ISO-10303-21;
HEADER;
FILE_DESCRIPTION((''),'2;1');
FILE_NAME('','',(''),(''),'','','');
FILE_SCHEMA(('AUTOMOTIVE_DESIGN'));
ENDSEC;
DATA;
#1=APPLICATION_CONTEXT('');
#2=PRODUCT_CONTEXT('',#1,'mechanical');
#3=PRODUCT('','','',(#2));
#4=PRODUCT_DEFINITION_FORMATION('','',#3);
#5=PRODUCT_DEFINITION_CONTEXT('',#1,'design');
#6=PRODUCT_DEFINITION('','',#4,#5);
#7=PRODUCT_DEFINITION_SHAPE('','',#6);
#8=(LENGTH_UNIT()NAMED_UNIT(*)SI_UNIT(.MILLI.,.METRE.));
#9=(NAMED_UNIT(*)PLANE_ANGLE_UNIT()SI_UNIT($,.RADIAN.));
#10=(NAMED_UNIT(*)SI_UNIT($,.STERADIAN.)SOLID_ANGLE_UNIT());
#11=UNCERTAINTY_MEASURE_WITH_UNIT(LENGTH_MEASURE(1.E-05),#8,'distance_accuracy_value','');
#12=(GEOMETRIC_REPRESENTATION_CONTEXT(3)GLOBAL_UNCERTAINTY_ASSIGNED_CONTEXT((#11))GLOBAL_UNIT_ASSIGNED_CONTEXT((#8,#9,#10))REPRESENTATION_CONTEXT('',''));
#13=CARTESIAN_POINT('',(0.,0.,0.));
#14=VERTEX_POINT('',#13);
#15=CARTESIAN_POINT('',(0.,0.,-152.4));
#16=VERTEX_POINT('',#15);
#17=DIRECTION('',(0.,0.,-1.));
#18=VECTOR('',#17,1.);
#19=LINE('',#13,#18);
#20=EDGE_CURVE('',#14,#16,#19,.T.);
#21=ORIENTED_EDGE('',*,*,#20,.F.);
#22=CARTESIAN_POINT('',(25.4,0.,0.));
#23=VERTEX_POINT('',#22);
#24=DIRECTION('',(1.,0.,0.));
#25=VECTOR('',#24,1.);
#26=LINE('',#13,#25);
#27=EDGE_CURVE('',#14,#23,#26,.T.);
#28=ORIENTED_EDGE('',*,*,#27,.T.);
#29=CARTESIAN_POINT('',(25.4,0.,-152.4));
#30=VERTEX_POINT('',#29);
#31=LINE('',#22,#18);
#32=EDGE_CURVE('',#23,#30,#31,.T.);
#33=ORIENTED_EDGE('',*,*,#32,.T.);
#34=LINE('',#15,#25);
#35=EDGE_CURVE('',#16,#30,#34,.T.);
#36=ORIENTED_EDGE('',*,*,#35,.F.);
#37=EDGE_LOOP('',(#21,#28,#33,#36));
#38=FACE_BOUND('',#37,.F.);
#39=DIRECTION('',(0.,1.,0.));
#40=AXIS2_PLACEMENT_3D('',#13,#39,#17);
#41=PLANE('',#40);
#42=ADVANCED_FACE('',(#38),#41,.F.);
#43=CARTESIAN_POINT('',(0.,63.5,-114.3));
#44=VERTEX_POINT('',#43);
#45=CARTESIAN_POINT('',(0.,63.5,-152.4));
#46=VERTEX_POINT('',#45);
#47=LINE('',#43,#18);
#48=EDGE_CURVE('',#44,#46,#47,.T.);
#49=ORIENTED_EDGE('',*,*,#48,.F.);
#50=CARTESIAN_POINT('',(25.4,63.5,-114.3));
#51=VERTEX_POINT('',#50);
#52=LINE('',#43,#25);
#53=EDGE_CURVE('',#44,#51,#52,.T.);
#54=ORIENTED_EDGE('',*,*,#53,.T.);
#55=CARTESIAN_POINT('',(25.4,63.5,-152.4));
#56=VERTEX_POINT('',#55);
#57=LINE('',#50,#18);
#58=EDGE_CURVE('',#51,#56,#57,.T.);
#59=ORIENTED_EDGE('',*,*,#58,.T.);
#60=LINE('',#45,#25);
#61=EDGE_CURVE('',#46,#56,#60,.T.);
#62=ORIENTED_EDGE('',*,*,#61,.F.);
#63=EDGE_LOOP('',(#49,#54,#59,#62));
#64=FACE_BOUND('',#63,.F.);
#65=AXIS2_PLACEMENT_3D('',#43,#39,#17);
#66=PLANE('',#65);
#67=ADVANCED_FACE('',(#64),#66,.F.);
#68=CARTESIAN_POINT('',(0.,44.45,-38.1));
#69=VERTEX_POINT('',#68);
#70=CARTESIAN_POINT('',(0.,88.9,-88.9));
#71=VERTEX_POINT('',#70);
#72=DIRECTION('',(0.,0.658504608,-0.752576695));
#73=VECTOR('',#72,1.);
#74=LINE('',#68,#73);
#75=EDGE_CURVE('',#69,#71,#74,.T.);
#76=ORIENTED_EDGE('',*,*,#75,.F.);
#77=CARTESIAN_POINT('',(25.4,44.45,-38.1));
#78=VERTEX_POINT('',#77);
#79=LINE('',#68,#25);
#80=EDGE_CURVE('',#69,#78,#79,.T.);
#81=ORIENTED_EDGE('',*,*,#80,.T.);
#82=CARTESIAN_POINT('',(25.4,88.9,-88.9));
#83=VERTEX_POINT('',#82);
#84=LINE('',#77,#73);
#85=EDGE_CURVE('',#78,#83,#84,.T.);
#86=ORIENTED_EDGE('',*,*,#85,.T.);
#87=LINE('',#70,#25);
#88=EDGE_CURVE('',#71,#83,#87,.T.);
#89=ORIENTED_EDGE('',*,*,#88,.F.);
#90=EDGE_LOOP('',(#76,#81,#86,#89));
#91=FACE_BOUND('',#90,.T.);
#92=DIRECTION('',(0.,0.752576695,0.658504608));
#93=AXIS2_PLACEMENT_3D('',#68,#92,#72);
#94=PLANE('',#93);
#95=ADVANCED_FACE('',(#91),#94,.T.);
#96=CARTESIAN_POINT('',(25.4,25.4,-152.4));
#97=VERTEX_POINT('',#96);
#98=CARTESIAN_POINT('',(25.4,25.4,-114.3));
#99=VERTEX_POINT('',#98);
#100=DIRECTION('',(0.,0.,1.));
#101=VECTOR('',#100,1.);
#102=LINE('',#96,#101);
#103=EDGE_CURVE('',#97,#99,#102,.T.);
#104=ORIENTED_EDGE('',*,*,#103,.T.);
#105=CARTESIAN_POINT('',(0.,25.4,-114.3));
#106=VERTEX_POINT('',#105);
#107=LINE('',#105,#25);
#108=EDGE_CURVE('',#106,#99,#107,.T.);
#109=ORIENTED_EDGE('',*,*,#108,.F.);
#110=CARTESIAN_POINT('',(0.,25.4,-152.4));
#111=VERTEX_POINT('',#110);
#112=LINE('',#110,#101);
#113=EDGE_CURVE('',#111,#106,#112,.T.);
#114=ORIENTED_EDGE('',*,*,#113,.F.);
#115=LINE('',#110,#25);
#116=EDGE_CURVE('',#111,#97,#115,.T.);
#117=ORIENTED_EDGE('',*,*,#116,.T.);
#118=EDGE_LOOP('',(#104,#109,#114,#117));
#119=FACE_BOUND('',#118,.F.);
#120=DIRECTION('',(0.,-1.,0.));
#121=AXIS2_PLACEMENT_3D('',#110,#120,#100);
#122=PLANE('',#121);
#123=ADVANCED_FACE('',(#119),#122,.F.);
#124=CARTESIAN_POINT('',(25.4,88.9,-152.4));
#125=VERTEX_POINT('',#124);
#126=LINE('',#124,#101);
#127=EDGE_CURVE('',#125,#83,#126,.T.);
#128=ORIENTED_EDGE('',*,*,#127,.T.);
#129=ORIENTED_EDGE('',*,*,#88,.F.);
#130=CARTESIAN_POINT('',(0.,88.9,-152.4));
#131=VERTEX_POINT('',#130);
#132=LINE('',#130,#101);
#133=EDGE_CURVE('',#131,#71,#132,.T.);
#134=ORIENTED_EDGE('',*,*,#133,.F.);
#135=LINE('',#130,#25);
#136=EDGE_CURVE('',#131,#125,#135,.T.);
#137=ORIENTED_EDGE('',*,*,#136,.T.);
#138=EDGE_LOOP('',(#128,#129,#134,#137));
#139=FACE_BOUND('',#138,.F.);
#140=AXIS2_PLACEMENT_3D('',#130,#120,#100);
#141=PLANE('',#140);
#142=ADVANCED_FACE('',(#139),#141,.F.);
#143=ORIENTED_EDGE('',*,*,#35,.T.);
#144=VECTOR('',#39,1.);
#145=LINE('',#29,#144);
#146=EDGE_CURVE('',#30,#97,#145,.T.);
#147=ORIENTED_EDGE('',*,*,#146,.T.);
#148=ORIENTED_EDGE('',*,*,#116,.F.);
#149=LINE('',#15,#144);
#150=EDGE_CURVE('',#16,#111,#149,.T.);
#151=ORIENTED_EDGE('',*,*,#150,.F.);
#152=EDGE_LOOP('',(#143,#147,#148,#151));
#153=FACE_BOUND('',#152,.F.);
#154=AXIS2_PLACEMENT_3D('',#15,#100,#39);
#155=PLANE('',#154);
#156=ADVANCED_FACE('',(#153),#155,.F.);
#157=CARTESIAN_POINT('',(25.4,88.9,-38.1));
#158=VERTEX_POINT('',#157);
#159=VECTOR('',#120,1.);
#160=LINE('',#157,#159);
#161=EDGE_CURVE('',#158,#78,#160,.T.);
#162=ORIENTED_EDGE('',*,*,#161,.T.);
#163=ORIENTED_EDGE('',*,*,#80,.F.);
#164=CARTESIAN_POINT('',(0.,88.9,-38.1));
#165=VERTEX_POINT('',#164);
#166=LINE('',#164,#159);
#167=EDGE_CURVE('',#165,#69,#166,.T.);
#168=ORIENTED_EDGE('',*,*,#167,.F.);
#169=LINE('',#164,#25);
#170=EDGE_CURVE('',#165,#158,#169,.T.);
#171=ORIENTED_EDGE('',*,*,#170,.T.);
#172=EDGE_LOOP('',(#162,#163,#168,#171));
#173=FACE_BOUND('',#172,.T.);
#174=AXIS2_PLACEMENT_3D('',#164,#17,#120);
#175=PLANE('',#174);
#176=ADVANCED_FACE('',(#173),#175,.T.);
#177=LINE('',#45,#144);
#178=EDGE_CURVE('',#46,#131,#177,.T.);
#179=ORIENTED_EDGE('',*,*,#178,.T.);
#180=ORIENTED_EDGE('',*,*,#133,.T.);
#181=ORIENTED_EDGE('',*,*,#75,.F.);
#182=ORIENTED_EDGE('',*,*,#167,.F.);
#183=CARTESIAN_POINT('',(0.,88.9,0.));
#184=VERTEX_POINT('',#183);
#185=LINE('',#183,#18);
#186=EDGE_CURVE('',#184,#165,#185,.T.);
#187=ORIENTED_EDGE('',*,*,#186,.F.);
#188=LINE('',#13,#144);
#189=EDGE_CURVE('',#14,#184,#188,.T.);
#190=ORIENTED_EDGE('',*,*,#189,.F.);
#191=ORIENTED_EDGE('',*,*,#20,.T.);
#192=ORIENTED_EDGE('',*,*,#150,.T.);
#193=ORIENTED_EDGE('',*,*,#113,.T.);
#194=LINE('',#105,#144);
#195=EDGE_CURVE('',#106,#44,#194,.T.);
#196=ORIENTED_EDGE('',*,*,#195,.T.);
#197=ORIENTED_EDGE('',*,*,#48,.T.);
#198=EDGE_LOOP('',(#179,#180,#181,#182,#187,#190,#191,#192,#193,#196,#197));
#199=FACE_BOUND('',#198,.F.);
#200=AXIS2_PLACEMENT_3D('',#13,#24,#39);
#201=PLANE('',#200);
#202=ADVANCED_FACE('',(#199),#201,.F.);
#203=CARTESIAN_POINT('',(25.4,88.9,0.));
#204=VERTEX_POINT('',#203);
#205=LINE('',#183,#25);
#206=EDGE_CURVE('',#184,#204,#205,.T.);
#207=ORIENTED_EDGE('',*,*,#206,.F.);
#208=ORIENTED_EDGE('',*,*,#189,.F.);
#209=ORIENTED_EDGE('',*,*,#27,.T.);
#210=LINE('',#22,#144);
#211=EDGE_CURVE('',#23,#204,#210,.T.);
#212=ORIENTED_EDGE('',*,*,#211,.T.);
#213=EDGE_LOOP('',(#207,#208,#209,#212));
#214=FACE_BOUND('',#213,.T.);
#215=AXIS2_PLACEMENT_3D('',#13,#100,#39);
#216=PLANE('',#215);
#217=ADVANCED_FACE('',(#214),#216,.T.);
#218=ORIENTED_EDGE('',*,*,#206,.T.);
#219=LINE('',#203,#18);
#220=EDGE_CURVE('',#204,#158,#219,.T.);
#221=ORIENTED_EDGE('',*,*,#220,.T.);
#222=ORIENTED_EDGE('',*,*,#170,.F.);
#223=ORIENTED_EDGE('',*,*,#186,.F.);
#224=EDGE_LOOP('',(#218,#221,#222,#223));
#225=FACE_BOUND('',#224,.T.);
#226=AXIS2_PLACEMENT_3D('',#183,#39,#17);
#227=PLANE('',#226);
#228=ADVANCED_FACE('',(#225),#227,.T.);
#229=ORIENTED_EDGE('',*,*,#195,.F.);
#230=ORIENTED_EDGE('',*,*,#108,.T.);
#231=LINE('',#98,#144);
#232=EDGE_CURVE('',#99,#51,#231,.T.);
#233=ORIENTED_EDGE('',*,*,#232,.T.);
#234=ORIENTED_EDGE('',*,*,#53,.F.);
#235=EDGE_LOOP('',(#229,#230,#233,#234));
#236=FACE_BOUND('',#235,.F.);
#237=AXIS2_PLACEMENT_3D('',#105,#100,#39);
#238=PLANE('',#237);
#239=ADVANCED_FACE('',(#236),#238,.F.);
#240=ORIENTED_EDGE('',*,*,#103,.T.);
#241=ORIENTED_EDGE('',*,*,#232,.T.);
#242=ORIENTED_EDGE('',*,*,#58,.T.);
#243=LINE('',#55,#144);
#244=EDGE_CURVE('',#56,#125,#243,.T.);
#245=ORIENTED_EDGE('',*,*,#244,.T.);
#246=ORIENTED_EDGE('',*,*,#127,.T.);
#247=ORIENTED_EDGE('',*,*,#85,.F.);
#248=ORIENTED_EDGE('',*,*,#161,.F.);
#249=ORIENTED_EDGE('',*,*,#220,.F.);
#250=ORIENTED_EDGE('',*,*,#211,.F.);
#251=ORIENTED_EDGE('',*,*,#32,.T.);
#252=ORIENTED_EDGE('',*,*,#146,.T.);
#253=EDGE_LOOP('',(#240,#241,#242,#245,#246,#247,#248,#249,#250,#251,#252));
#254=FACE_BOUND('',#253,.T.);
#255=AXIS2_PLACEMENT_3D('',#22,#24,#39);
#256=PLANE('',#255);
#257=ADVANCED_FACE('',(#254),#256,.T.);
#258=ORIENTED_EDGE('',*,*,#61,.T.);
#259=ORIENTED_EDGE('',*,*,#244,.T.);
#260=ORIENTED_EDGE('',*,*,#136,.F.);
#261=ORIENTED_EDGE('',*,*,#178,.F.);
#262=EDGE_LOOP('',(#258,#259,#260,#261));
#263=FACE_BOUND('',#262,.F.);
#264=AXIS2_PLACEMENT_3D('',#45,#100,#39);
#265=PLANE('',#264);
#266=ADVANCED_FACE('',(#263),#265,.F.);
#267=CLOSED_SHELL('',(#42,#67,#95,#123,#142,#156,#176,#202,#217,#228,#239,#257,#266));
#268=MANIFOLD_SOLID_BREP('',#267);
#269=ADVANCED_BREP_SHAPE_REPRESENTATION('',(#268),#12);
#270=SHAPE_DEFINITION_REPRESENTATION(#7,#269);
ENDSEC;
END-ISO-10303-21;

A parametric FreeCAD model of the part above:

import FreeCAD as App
import Part
import Sketcher
from FreeCAD import Vector
Q = App.Units.Quantity


def add_polygon(sketch, points):
    """Adds a closed chain of lines whose ends are joined by coincident constraints."""
    first, n = sketch.GeometryCount, len(points)
    for a, b in zip(points, points[1:] + points[:1]):
        sketch.addGeometry(Part.LineSegment(App.Vector(*a, 0), App.Vector(*b, 0)), False)
    for i in range(n):
        sketch.addConstraint(Sketcher.Constraint("Coincident", first + i, 2, first + (i + 1) % n, 1))

doc = App.newDocument("Part")
body = doc.addObject("PartDesign::Body", "Body")

# Sketch on YZ plane
sketch1 = body.newObject("Sketcher::SketchObject", "Sketch")
sketch1.AttachmentSupport = (doc.getObject("YZ_Plane"), [""])
sketch1.MapMode = "FlatFace"
add_polygon(sketch1, [(89, 0), (0, 0), (0, -152), (25, -152), (25, -114), (64, -114), (64, -152), (89, -152), (89, -89), (44, -38), (89, -38)])  # lines 0-10
sketch1.addConstraint(Sketcher.Constraint("Horizontal", 0))
sketch1.addConstraint(Sketcher.Constraint("Vertical", 1))
sketch1.addConstraint(Sketcher.Constraint("Horizontal", 2))
sketch1.addConstraint(Sketcher.Constraint("Vertical", 3))
sketch1.addConstraint(Sketcher.Constraint("Horizontal", 4))
sketch1.addConstraint(Sketcher.Constraint("Vertical", 5))
sketch1.addConstraint(Sketcher.Constraint("Horizontal", 6))
sketch1.addConstraint(Sketcher.Constraint("Vertical", 7))
sketch1.addConstraint(Sketcher.Constraint("Horizontal", 9))
sketch1.addConstraint(Sketcher.Constraint("Vertical", 10))
sketch1.addConstraint(Sketcher.Constraint("Coincident", 0, 2, -1, 1))
sketch1.addConstraint(Sketcher.Constraint("Horizontal", 2, 2, 5, 2))
sketch1.addConstraint(Sketcher.Constraint("Vertical", 7, 2, 9, 2))
sketch1.addConstraint(Sketcher.Constraint("Equal", 2, 6))
sketch1.addConstraint(Sketcher.Constraint("Equal", 4, 3))
sketch1.addConstraint(Sketcher.Constraint("Equal", 5, 10))
sketch1.addConstraint(Sketcher.Constraint("DistanceY", 1, 2, 1, 1, Q("6 in")))
sketch1.addConstraint(Sketcher.Constraint("DistanceX", 2, 1, 2, 2, Q("1 in")))
sketch1.addConstraint(Sketcher.Constraint("DistanceX", 0, 2, 0, 1, Q("3.5 in")))
sketch1.addConstraint(Sketcher.Constraint("DistanceY", 7, 1, 7, 2, Q("2.5 in")))
sketch1.addConstraint(Sketcher.Constraint("DistanceX", 9, 1, 9, 2, Q("1.75 in")))
pad1 = body.newObject("PartDesign::Pad", "Pad")
pad1.Profile = sketch1
pad1.Length = Q("1 in")

doc.recompute()
